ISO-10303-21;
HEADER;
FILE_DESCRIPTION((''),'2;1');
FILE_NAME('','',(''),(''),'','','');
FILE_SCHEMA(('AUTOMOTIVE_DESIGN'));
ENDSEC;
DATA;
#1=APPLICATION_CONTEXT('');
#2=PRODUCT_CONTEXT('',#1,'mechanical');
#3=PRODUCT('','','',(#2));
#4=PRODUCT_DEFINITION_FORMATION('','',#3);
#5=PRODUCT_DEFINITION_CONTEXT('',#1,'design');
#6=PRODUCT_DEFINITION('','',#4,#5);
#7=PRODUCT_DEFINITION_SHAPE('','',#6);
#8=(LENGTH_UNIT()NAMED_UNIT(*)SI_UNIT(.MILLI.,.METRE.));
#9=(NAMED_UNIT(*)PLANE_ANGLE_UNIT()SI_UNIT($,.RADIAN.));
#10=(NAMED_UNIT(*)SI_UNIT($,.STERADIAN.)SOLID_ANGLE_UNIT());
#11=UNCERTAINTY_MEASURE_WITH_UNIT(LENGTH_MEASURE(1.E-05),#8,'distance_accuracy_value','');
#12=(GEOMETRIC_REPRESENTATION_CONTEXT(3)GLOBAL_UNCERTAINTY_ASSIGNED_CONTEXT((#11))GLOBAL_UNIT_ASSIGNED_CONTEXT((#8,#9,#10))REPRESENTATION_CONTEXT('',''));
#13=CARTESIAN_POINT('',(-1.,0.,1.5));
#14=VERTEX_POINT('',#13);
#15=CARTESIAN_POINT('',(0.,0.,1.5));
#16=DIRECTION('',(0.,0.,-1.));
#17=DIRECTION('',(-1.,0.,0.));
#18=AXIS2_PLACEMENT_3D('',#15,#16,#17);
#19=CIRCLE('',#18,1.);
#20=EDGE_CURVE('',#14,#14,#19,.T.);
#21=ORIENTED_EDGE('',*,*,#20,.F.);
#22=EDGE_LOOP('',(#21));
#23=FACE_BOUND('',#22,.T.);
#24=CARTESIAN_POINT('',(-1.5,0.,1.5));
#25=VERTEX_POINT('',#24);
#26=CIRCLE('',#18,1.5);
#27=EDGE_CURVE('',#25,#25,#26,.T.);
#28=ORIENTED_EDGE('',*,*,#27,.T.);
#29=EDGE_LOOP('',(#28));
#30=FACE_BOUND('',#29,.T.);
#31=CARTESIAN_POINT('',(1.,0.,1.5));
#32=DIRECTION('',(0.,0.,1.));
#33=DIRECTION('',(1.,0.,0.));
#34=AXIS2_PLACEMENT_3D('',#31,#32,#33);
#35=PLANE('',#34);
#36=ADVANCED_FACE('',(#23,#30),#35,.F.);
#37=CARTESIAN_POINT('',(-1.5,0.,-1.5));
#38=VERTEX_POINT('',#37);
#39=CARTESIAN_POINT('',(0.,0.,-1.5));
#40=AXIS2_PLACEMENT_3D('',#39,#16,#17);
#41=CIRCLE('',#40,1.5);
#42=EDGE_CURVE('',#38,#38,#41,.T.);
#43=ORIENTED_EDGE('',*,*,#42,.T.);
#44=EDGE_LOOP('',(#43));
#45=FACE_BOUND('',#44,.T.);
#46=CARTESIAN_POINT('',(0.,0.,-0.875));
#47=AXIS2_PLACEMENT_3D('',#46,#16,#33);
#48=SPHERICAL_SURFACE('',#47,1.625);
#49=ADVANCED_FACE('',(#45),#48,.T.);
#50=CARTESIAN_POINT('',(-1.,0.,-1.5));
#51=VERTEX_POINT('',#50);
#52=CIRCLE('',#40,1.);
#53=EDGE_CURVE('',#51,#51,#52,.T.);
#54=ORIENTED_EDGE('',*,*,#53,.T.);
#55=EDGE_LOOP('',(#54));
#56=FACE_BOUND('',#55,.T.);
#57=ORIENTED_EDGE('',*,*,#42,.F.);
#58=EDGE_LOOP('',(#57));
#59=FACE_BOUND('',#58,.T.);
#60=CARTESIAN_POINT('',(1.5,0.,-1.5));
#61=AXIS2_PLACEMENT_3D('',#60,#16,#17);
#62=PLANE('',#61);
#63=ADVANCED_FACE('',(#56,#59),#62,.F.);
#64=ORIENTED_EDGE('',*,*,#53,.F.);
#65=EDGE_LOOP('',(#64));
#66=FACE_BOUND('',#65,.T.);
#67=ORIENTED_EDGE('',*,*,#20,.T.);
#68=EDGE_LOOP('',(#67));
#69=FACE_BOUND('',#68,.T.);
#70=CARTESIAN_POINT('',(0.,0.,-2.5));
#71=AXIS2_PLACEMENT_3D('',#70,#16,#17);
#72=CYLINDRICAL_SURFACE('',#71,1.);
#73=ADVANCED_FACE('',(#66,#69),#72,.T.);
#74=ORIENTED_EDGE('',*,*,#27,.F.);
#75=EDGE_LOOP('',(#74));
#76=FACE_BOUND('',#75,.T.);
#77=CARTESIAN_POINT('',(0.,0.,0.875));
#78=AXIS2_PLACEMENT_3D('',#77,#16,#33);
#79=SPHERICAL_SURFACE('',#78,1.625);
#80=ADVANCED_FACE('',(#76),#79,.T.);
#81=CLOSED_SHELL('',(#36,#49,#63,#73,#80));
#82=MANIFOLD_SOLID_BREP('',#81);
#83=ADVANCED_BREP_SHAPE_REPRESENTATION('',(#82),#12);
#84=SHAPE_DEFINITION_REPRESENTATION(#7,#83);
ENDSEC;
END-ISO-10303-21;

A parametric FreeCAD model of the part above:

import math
import FreeCAD as App
import Part
import Sketcher
from FreeCAD import Vector

doc = App.newDocument("Part")
params = doc.addObject("Spreadsheet::Sheet", "Params")
for row, (alias, value) in enumerate([
    ("sketch1_height", "5 mm"),
    ("sketch1_height2", "3 mm"),
    ("sketch1_width", "0.5 mm"),
    ("revolution_angle", "360 deg"),
], start=1):
    params.set(f"A{row}", alias)
    params.set(f"B{row}", "=" + value)
    params.setAlias(f"B{row}", alias)

body = doc.addObject("PartDesign::Body", "Body")

sketch1 = doc.addObject("Sketcher::SketchObject", "Sketch")
body.addObject(sketch1)
sketch1.AttachmentSupport = (doc.XZ_Plane, [""])
sketch1.MapMode = "FlatFace"
sketch1.addGeometry(Part.LineSegment(Vector(0, -2.5, 0), Vector(0, 2.5, 0)), False)
sketch1.addGeometry(Part.ArcOfCircle(Part.Circle(Vector(0, 0.9, 0), Vector(0, 0, 1), 1.6), math.radians(23), math.radians(90)), False)
sketch1.addGeometry(Part.LineSegment(Vector(1.5, 1.5, 0), Vector(1, 1.5, 0)), False)
sketch1.addGeometry(Part.LineSegment(Vector(1, 1.5, 0), Vector(1, -1.5, 0)), False)
sketch1.addGeometry(Part.LineSegment(Vector(1, -1.5, 0), Vector(1.5, -1.5, 0)), False)
sketch1.addGeometry(Part.ArcOfCircle(Part.Circle(Vector(0, -0.9, 0), Vector(0, 0, 1), 1.6), math.radians(-90), math.radians(-23)), False)
sketch1.addConstraint(Sketcher.Constraint("Coincident", 0, 2, 1, 2))
sketch1.addConstraint(Sketcher.Constraint("Coincident", 1, 1, 2, 1))
sketch1.addConstraint(Sketcher.Constraint("Coincident", 2, 2, 3, 1))
sketch1.addConstraint(Sketcher.Constraint("Coincident", 3, 2, 4, 1))
sketch1.addConstraint(Sketcher.Constraint("Coincident", 4, 2, 5, 2))
sketch1.addConstraint(Sketcher.Constraint("Coincident", 5, 1, 0, 1))
sketch1.addConstraint(Sketcher.Constraint("Vertical", 0))
sketch1.addConstraint(Sketcher.Constraint("Horizontal", 2))
sketch1.addConstraint(Sketcher.Constraint("Vertical", 3))
sketch1.addConstraint(Sketcher.Constraint("Horizontal", 4))
sketch1.addConstraint(Sketcher.Constraint("Equal", 1, 5))
sketch1.addConstraint(Sketcher.Constraint("Symmetric", 1, 3, 5, 3, -1, 1))
sketch1.addConstraint(Sketcher.Constraint("Symmetric", 1, 1, 4, 2, -1))
sketch1.addConstraint(Sketcher.Constraint("PointOnObject", 0, 2, -2))
sketch1.addConstraint(Sketcher.Constraint("DistanceY", 0, 1, 0, 2, 5.0))
sketch1.addConstraint(Sketcher.Constraint("DistanceY", 3, 2, 3, 1, 3.0))
sketch1.addConstraint(Sketcher.Constraint("DistanceX", 2, 2, 2, 1, 0.5))
sketch1.addConstraint(Sketcher.Constraint("DistanceX", -1, 1, 2, 2, 1.0))
sketch1.setExpression("Constraints[14]", "Params.sketch1_height")
sketch1.setExpression("Constraints[15]", "Params.sketch1_height2")
sketch1.setExpression("Constraints[16]", "Params.sketch1_width")
revolution = doc.addObject("PartDesign::Revolution", "Revolution")
body.addObject(revolution)
revolution.Profile = sketch1
revolution.ReferenceAxis = (sketch1, ["V_Axis"])
revolution.setExpression("Angle", "Params.revolution_angle")

doc.recompute()
